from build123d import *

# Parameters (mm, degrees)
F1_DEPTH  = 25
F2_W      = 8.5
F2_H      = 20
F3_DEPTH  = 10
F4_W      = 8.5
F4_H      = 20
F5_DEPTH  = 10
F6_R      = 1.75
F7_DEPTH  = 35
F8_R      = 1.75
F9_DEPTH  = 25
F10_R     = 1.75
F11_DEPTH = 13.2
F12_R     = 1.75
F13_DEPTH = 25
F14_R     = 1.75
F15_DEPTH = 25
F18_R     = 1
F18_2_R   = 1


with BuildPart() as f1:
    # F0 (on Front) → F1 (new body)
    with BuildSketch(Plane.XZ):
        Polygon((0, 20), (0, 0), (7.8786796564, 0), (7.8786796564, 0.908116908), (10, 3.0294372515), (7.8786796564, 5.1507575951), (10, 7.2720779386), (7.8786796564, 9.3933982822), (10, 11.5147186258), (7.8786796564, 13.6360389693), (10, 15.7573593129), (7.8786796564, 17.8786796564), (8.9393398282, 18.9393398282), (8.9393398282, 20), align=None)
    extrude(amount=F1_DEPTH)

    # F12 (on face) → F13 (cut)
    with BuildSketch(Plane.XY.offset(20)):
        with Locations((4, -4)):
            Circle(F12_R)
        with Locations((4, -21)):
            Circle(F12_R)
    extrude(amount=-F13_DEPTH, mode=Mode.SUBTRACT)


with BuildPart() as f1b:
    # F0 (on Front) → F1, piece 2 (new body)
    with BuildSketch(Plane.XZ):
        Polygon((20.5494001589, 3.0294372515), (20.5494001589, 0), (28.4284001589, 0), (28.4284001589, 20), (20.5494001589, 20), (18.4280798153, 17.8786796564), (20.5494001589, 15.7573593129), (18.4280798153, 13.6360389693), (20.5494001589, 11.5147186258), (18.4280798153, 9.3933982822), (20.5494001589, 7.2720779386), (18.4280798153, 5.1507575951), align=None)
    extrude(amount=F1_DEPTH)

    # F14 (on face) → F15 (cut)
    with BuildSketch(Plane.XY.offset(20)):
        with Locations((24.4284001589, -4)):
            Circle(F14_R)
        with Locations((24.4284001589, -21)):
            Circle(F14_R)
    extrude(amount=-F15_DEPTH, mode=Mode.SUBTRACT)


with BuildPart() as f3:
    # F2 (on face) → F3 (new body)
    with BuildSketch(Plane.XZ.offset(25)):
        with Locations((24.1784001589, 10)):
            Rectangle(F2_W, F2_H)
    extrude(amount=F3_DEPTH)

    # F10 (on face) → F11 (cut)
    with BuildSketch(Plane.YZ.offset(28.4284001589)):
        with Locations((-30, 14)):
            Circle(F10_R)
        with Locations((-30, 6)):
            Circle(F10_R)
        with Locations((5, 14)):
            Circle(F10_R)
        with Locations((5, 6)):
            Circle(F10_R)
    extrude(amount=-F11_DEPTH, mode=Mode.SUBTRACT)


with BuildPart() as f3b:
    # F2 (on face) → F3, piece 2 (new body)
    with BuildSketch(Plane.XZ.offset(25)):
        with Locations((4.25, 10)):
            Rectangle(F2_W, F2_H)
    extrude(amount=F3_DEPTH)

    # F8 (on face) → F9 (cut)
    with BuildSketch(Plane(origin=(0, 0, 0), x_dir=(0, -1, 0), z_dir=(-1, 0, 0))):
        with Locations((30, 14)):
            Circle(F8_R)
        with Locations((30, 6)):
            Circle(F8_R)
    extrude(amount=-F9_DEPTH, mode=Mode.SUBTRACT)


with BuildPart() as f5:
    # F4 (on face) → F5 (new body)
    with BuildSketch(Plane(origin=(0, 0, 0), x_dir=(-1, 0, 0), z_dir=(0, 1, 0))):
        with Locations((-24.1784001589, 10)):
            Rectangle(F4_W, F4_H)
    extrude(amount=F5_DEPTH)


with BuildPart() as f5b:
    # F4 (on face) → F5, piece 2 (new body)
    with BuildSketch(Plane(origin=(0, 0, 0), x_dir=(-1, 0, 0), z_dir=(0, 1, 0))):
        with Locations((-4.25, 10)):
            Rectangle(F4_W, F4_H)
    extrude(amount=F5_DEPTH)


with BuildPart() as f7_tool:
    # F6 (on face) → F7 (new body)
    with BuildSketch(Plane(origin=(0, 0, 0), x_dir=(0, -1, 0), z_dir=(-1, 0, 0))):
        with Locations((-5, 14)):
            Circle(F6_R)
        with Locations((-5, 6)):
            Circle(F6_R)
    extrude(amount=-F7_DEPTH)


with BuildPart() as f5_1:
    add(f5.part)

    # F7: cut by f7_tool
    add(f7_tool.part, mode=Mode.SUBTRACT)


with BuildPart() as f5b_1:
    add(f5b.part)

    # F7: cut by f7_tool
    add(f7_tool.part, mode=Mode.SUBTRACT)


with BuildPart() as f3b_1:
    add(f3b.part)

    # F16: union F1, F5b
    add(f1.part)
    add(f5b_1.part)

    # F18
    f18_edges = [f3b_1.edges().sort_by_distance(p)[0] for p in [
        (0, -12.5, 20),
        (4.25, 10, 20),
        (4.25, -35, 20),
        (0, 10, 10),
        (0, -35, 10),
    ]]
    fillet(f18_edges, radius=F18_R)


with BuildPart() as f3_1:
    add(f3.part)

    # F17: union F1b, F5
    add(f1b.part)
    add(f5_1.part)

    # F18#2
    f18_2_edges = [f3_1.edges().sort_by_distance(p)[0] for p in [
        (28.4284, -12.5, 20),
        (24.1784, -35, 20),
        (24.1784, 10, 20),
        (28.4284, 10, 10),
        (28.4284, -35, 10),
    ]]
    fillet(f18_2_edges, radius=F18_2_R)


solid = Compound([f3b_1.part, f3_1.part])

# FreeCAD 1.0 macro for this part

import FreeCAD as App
import Part
import Sketcher

V = App.Vector


def edges_at(feature, points):
    """Names of the edges that pass closest to the given points."""
    edges = feature.Shape.Edges
    near = lambda p: min(range(len(edges)), key=lambda i: edges[i].distToShape(Part.Vertex(*p))[0])
    return sorted({f"Edge{near(p) + 1}" for p in points})

doc = App.newDocument("Part")
body = doc.addObject("PartDesign::Body", "Body")

sketch1 = doc.addObject("Sketcher::SketchObject", "Sketch")
body.addObject(sketch1)
sketch1.AttachmentSupport = (doc.XZ_Plane, [""])
sketch1.MapMode = "FlatFace"
sketch1.addGeometry([
    Part.LineSegment(V(0, 20, 0), V(0, 0, 0)),
    Part.LineSegment(V(0, 0, 0), V(7.9, 0, 0)),
    Part.LineSegment(V(7.9, 0, 0), V(7.9, 0.9, 0)),
    Part.LineSegment(V(7.9, 0.9, 0), V(10, 3, 0)),
    Part.LineSegment(V(10, 3, 0), V(7.9, 5.2, 0)),
    Part.LineSegment(V(7.9, 5.2, 0), V(10, 7.3, 0)),
    Part.LineSegment(V(10, 7.3, 0), V(7.9, 9.4, 0)),
    Part.LineSegment(V(7.9, 9.4, 0), V(10, 11.5, 0)),
    Part.LineSegment(V(10, 11.5, 0), V(7.9, 13.6, 0)),
    Part.LineSegment(V(7.9, 13.6, 0), V(10, 15.8, 0)),
    Part.LineSegment(V(10, 15.8, 0), V(7.9, 17.9, 0)),
    Part.LineSegment(V(7.9, 17.9, 0), V(8.9, 18.9, 0)),
    Part.LineSegment(V(8.9, 18.9, 0), V(8.9, 20, 0)),
    Part.LineSegment(V(8.9, 20, 0), V(0, 20, 0)),
], False)
sketch1.addConstraint([
    Sketcher.Constraint("Coincident", 0, 2, 1, 1),
    Sketcher.Constraint("Coincident", 1, 2, 2, 1),
    Sketcher.Constraint("Coincident", 2, 2, 3, 1),
    Sketcher.Constraint("Coincident", 3, 2, 4, 1),
    Sketcher.Constraint("Coincident", 4, 2, 5, 1),
    Sketcher.Constraint("Coincident", 5, 2, 6, 1),
    Sketcher.Constraint("Coincident", 6, 2, 7, 1),
    Sketcher.Constraint("Coincident", 7, 2, 8, 1),
    Sketcher.Constraint("Coincident", 8, 2, 9, 1),
    Sketcher.Constraint("Coincident", 9, 2, 10, 1),
    Sketcher.Constraint("Coincident", 10, 2, 11, 1),
    Sketcher.Constraint("Coincident", 11, 2, 12, 1),
    Sketcher.Constraint("Coincident", 12, 2, 13, 1),
    Sketcher.Constraint("Coincident", 13, 2, 0, 1),
    Sketcher.Constraint("Vertical", 0),
    Sketcher.Constraint("Horizontal", 1),
    Sketcher.Constraint("Vertical", 2),
    Sketcher.Constraint("Vertical", 12),
    Sketcher.Constraint("Horizontal", 13),
    Sketcher.Constraint("Coincident", 0, 2, -1, 1),
    Sketcher.Constraint("Perpendicular", 3, 4),
    Sketcher.Constraint("Perpendicular", 4, 5),
    Sketcher.Constraint("Perpendicular", 5, 6),
    Sketcher.Constraint("Perpendicular", 6, 7),
    Sketcher.Constraint("Perpendicular", 7, 8),
    Sketcher.Constraint("Perpendicular", 8, 9),
    Sketcher.Constraint("Perpendicular", 9, 10),
    Sketcher.Constraint("Perpendicular", 10, 11),
    Sketcher.Constraint("Vertical", 2, 2, 4, 2),
    Sketcher.Constraint("Vertical", 3, 2, 5, 2),
    Sketcher.Constraint("Vertical", 4, 2, 6, 2),
    Sketcher.Constraint("Vertical", 5, 2, 7, 2),
    Sketcher.Constraint("Vertical", 6, 2, 8, 2),
    Sketcher.Constraint("Vertical", 7, 2, 9, 2),
    Sketcher.Constraint("Vertical", 8, 2, 10, 2),
    Sketcher.Constraint("Equal", 3, 4),
    Sketcher.Constraint("DistanceY", 0, 2, 0, 1, 20.0),
    Sketcher.Constraint("Distance", 3, 3.0),
    Sketcher.Constraint("DistanceX", -1, 1, 3, 2, 10.0),
    Sketcher.Constraint("Distance", 11, 1.5),
    Sketcher.Constraint("DistanceY", 12, 1, 12, 2, 1.06066),
])
pad1 = doc.addObject("PartDesign::Pad", "Pad")
body.addObject(pad1)
pad1.Profile = sketch1
pad1.Length = 25

sketch2 = doc.addObject("Sketcher::SketchObject", "Sketch001")
body.addObject(sketch2)
sketch2.AttachmentSupport = (doc.XY_Plane, [""])
sketch2.MapMode = "FlatFace"
sketch2.AttachmentOffset = App.Placement(V(0, 0, 20), App.Rotation())
sketch2.addGeometry([
    Part.Circle(V(4, -4, 0), V(0, 0, 1), 1.8),
    Part.Circle(V(4, -21, 0), V(0, 0, 1), 1.8),
], False)
sketch2.addConstraint([
    Sketcher.Constraint("Equal", 0, 1),
    Sketcher.Constraint("Vertical", 0, 3, 1, 3),
    Sketcher.Constraint("Diameter", 0, 3.5),
    Sketcher.Constraint("DistanceX", -1, 1, 0, 3, 4.0),
    Sketcher.Constraint("DistanceY", 0, 3, -1, 1, 4.0),
    Sketcher.Constraint("DistanceY", 1, 3, -1, 1, 21.0),
])
pocket1 = doc.addObject("PartDesign::Pocket", "Pocket")
body.addObject(pocket1)
pocket1.Profile = sketch2
pocket1.Length = 25
body2 = doc.addObject("PartDesign::Body", "Body001")

sketch3 = doc.addObject("Sketcher::SketchObject", "Sketch002")
body2.addObject(sketch3)
sketch3.AttachmentSupport = (doc.getObject("XZ_Plane001"), [""])
sketch3.MapMode = "FlatFace"
sketch3.addGeometry([
    Part.LineSegment(V(20.5, 3, 0), V(20.5, 0, 0)),
    Part.LineSegment(V(20.5, 0, 0), V(28.4, 0, 0)),
    Part.LineSegment(V(28.4, 0, 0), V(28.4, 20, 0)),
    Part.LineSegment(V(28.4, 20, 0), V(20.5, 20, 0)),
    Part.LineSegment(V(20.5, 20, 0), V(18.4, 17.9, 0)),
    Part.LineSegment(V(18.4, 17.9, 0), V(20.5, 15.8, 0)),
    Part.LineSegment(V(20.5, 15.8, 0), V(18.4, 13.6, 0)),
    Part.LineSegment(V(18.4, 13.6, 0), V(20.5, 11.5, 0)),
    Part.LineSegment(V(20.5, 11.5, 0), V(18.4, 9.4, 0)),
    Part.LineSegment(V(18.4, 9.4, 0), V(20.5, 7.3, 0)),
    Part.LineSegment(V(20.5, 7.3, 0), V(18.4, 5.2, 0)),
    Part.LineSegment(V(18.4, 5.2, 0), V(20.5, 3, 0)),
], False)
sketch3.addConstraint([
    Sketcher.Constraint("Coincident", 0, 2, 1, 1),
    Sketcher.Constraint("Coincident", 1, 2, 2, 1),
    Sketcher.Constraint("Coincident", 2, 2, 3, 1),
    Sketcher.Constraint("Coincident", 3, 2, 4, 1),
    Sketcher.Constraint("Coincident", 4, 2, 5, 1),
    Sketcher.Constraint("Coincident", 5, 2, 6, 1),
    Sketcher.Constraint("Coincident", 6, 2, 7, 1),
    Sketcher.Constraint("Coincident", 7, 2, 8, 1),
    Sketcher.Constraint("Coincident", 8, 2, 9, 1),
    Sketcher.Constraint("Coincident", 9, 2, 10, 1),
    Sketcher.Constraint("Coincident", 10, 2, 11, 1),
    Sketcher.Constraint("Coincident", 11, 2, 0, 1),
    Sketcher.Constraint("Vertical", 0),
    Sketcher.Constraint("Horizontal", 1),
    Sketcher.Constraint("Vertical", 2),
    Sketcher.Constraint("Horizontal", 3),
    Sketcher.Constraint("PointOnObject", 0, 2, -1),
    Sketcher.Constraint("Perpendicular", 4, 5),
    Sketcher.Constraint("Perpendicular", 5, 6),
    Sketcher.Constraint("Perpendicular", 6, 7),
    Sketcher.Constraint("Perpendicular", 7, 8),
    Sketcher.Constraint("Perpendicular", 8, 9),
    Sketcher.Constraint("Perpendicular", 9, 10),
    Sketcher.Constraint("Perpendicular", 10, 11),
    Sketcher.Constraint("Vertical", 0, 2, 3, 2),
    Sketcher.Constraint("Vertical", 3, 2, 5, 2),
    Sketcher.Constraint("Vertical", 4, 2, 6, 2),
    Sketcher.Constraint("Vertical", 5, 2, 7, 2),
    Sketcher.Constraint("Vertical", 6, 2, 8, 2),
    Sketcher.Constraint("Vertical", 7, 2, 9, 2),
    Sketcher.Constraint("Vertical", 8, 2, 10, 2),
    Sketcher.Constraint("Equal", 4, 5),
    Sketcher.Constraint("DistanceY", 2, 1, 2, 2, 20.0),
    Sketcher.Constraint("Distance", 4, 3.0),
    Sketcher.Constraint("DistanceX", 1, 1, 1, 2, 7.879),
    Sketcher.Constraint("DistanceX", -1, 1, 0, 2, 20.5494),
])
pad2 = doc.addObject("PartDesign::Pad", "Pad001")
body2.addObject(pad2)
pad2.Profile = sketch3
pad2.Length = 25

sketch4 = doc.addObject("Sketcher::SketchObject", "Sketch003")
body2.addObject(sketch4)
sketch4.AttachmentSupport = (doc.getObject("XY_Plane001"), [""])
sketch4.MapMode = "FlatFace"
sketch4.AttachmentOffset = App.Placement(V(0, 0, 20), App.Rotation())
sketch4.addGeometry([
    Part.Circle(V(24.4, -4, 0), V(0, 0, 1), 1.8),
    Part.Circle(V(24.4, -21, 0), V(0, 0, 1), 1.8),
], False)
sketch4.addConstraint([
    Sketcher.Constraint("Equal", 0, 1),
    Sketcher.Constraint("Vertical", 0, 3, 1, 3),
    Sketcher.Constraint("Diameter", 0, 3.5),
    Sketcher.Constraint("DistanceY", 0, 3, -1, 1, 4.0),
    Sketcher.Constraint("DistanceY", 1, 3, -1, 1, 21.0),
    Sketcher.Constraint("DistanceX", -1, 1, 0, 3, 24.4284),
])
pocket2 = doc.addObject("PartDesign::Pocket", "Pocket001")
body2.addObject(pocket2)
pocket2.Profile = sketch4
pocket2.Length = 25
body3 = doc.addObject("PartDesign::Body", "Body002")

sketch5 = doc.addObject("Sketcher::SketchObject", "Sketch004")
body3.addObject(sketch5)
sketch5.AttachmentSupport = (doc.getObject("XZ_Plane002"), [""])
sketch5.MapMode = "FlatFace"
sketch5.AttachmentOffset = App.Placement(V(0, 0, 25), App.Rotation())
sketch5.addGeometry([
    Part.LineSegment(V(20, 20, 0), V(20, 0, 0)),
    Part.LineSegment(V(20, 0, 0), V(28, 0, 0)),
    Part.LineSegment(V(28, 0, 0), V(28, 20, 0)),
    Part.LineSegment(V(28, 20, 0), V(20, 20, 0)),
], False)
sketch5.addConstraint([
    Sketcher.Constraint("Coincident", 0, 2, 1, 1),
    Sketcher.Constraint("Coincident", 1, 2, 2, 1),
    Sketcher.Constraint("Coincident", 2, 2, 3, 1),
    Sketcher.Constraint("Coincident", 3, 2, 0, 1),
    Sketcher.Constraint("Vertical", 0),
    Sketcher.Constraint("Horizontal", 1),
    Sketcher.Constraint("Vertical", 2),
    Sketcher.Constraint("Horizontal", 3),
    Sketcher.Constraint("PointOnObject", 0, 2, -1),
    Sketcher.Constraint("DistanceY", 0, 2, 0, 1, 20.0),
    Sketcher.Constraint("DistanceX", 1, 1, 1, 2, 8.5),
    Sketcher.Constraint("DistanceX", -1, 1, 0, 2, 19.9284),
])
pad3 = doc.addObject("PartDesign::Pad", "Pad002")
body3.addObject(pad3)
pad3.Profile = sketch5
pad3.Length = 10

sketch6 = doc.addObject("Sketcher::SketchObject", "Sketch005")
body3.addObject(sketch6)
sketch6.AttachmentSupport = (doc.getObject("YZ_Plane002"), [""])
sketch6.MapMode = "FlatFace"
sketch6.AttachmentOffset = App.Placement(V(0, 0, 28.4284), App.Rotation())
sketch6.addGeometry([
    Part.Circle(V(-30, 14, 0), V(0, 0, 1), 1.8),
    Part.Circle(V(-30, 6, 0), V(0, 0, 1), 1.8),
    Part.Circle(V(5, 14, 0), V(0, 0, 1), 1.8),
    Part.Circle(V(5, 6, 0), V(0, 0, 1), 1.8),
], False)
sketch6.addConstraint([
    Sketcher.Constraint("Equal", 0, 1),
    Sketcher.Constraint("Equal", 1, 2),
    Sketcher.Constraint("Equal", 2, 3),
    Sketcher.Constraint("Horizontal", 0, 3, 2, 3),
    Sketcher.Constraint("Horizontal", 1, 3, 3, 3),
    Sketcher.Constraint("Vertical", 0, 3, 1, 3),
    Sketcher.Constraint("Vertical", 2, 3, 3, 3),
    Sketcher.Constraint("Diameter", 0, 3.5),
    Sketcher.Constraint("DistanceX", 0, 3, -1, 1, 30.0),
    Sketcher.Constraint("DistanceY", -1, 1, 0, 3, 14.0),
    Sketcher.Constraint("DistanceY", -1, 1, 1, 3, 6.0),
    Sketcher.Constraint("DistanceX", -1, 1, 2, 3, 5.0),
])
pocket3 = doc.addObject("PartDesign::Pocket", "Pocket002")
body3.addObject(pocket3)
pocket3.Profile = sketch6
pocket3.Length = 13.2
body4 = doc.addObject("PartDesign::Body", "Body003")

sketch7 = doc.addObject("Sketcher::SketchObject", "Sketch006")
body4.addObject(sketch7)
sketch7.AttachmentSupport = (doc.getObject("XZ_Plane003"), [""])
sketch7.MapMode = "FlatFace"
sketch7.AttachmentOffset = App.Placement(V(0, 0, 25), App.Rotation())
sketch7.addGeometry([
    Part.LineSegment(V(0, 20, 0), V(0, 0, 0)),
    Part.LineSegment(V(0, 0, 0), V(8, 0, 0)),
    Part.LineSegment(V(8, 0, 0), V(8, 20, 0)),
    Part.LineSegment(V(8, 20, 0), V(0, 20, 0)),
], False)
sketch7.addConstraint([
    Sketcher.Constraint("Coincident", 0, 2, 1, 1),
    Sketcher.Constraint("Coincident", 1, 2, 2, 1),
    Sketcher.Constraint("Coincident", 2, 2, 3, 1),
    Sketcher.Constraint("Coincident", 3, 2, 0, 1),
    Sketcher.Constraint("Vertical", 0),
    Sketcher.Constraint("Horizontal", 1),
    Sketcher.Constraint("Vertical", 2),
    Sketcher.Constraint("Horizontal", 3),
    Sketcher.Constraint("Coincident", 0, 2, -1, 1),
    Sketcher.Constraint("DistanceY", 0, 2, 0, 1, 20.0),
    Sketcher.Constraint("DistanceX", 1, 1, 1, 2, 8.5),
])
pad4 = doc.addObject("PartDesign::Pad", "Pad003")
body4.addObject(pad4)
pad4.Profile = sketch7
pad4.Length = 10

sketch8 = doc.addObject("Sketcher::SketchObject", "Sketch007")
body4.addObject(sketch8)
sketch8.AttachmentSupport = (doc.getObject("YZ_Plane003"), [""])
sketch8.MapMode = "FlatFace"
sketch8.addGeometry([
    Part.Circle(V(-30, 14, 0), V(0, 0, 1), 1.8),
    Part.Circle(V(-30, 6, 0), V(0, 0, 1), 1.8),
], False)
sketch8.addConstraint([
    Sketcher.Constraint("Equal", 0, 1),
    Sketcher.Constraint("Vertical", 0, 3, 1, 3),
    Sketcher.Constraint("Diameter", 0, 3.5),
    Sketcher.Constraint("DistanceX", 0, 3, -1, 1, 30.0),
    Sketcher.Constraint("DistanceY", -1, 1, 0, 3, 14.0),
    Sketcher.Constraint("DistanceY", -1, 1, 1, 3, 6.0),
])
pocket4 = doc.addObject("PartDesign::Pocket", "Pocket003")
body4.addObject(pocket4)
pocket4.Profile = sketch8
pocket4.Length = 25
pocket4.Reversed = True
body5 = doc.addObject("PartDesign::Body", "Body004")

sketch9 = doc.addObject("Sketcher::SketchObject", "Sketch008")
body5.addObject(sketch9)
sketch9.AttachmentSupport = (doc.getObject("XZ_Plane004"), [""])
sketch9.MapMode = "FlatFace"
sketch9.addGeometry([
    Part.LineSegment(V(28, 20, 0), V(28, 0, 0)),
    Part.LineSegment(V(28, 0, 0), V(20, 0, 0)),
    Part.LineSegment(V(20, 0, 0), V(20, 20, 0)),
    Part.LineSegment(V(20, 20, 0), V(28, 20, 0)),
], False)
sketch9.addConstraint([
    Sketcher.Constraint("Coincident", 0, 2, 1, 1),
    Sketcher.Constraint("Coincident", 1, 2, 2, 1),
    Sketcher.Constraint("Coincident", 2, 2, 3, 1),
    Sketcher.Constraint("Coincident", 3, 2, 0, 1),
    Sketcher.Constraint("Vertical", 0),
    Sketcher.Constraint("Horizontal", 1),
    Sketcher.Constraint("Vertical", 2),
    Sketcher.Constraint("Horizontal", 3),
    Sketcher.Constraint("PointOnObject", 0, 2, -1),
    Sketcher.Constraint("DistanceY", 0, 2, 0, 1, 20.0),
    Sketcher.Constraint("DistanceX", 1, 2, 1, 1, 8.5),
    Sketcher.Constraint("DistanceX", -1, 1, 0, 2, 28.4284),
])
pad5 = doc.addObject("PartDesign::Pad", "Pad004")
body5.addObject(pad5)
pad5.Profile = sketch9
pad5.Length = 10
pad5.Reversed = True
body6 = doc.addObject("PartDesign::Body", "Body005")

sketch10 = doc.addObject("Sketcher::SketchObject", "Sketch009")
body6.addObject(sketch10)
sketch10.AttachmentSupport = (doc.getObject("XZ_Plane005"), [""])
sketch10.MapMode = "FlatFace"
sketch10.addGeometry([
    Part.LineSegment(V(8, 20, 0), V(8, 0, 0)),
    Part.LineSegment(V(8, 0, 0), V(0, 0, 0)),
    Part.LineSegment(V(0, 0, 0), V(0, 20, 0)),
    Part.LineSegment(V(0, 20, 0), V(8, 20, 0)),
], False)
sketch10.addConstraint([
    Sketcher.Constraint("Coincident", 0, 2, 1, 1),
    Sketcher.Constraint("Coincident", 1, 2, 2, 1),
    Sketcher.Constraint("Coincident", 2, 2, 3, 1),
    Sketcher.Constraint("Coincident", 3, 2, 0, 1),
    Sketcher.Constraint("Vertical", 0),
    Sketcher.Constraint("Horizontal", 1),
    Sketcher.Constraint("Vertical", 2),
    Sketcher.Constraint("Horizontal", 3),
    Sketcher.Constraint("Coincident", 1, 2, -1, 1),
    Sketcher.Constraint("DistanceY", 0, 2, 0, 1, 20.0),
    Sketcher.Constraint("DistanceX", 1, 2, 1, 1, 8.5),
])
pad6 = doc.addObject("PartDesign::Pad", "Pad005")
body6.addObject(pad6)
pad6.Profile = sketch10
pad6.Length = 10
pad6.Reversed = True
body7 = doc.addObject("PartDesign::Body", "Body006")
body7.AllowCompound = True

sketch11 = doc.addObject("Sketcher::SketchObject", "Sketch010")
body7.addObject(sketch11)
sketch11.AttachmentSupport = (doc.getObject("YZ_Plane006"), [""])
sketch11.MapMode = "FlatFace"
sketch11.addGeometry([
    Part.Circle(V(5, 14, 0), V(0, 0, 1), 1.8),
    Part.Circle(V(5, 6, 0), V(0, 0, 1), 1.8),
], False)
sketch11.addConstraint([
    Sketcher.Constraint("Equal", 0, 1),
    Sketcher.Constraint("Vertical", 0, 3, 1, 3),
    Sketcher.Constraint("Diameter", 0, 3.5),
    Sketcher.Constraint("DistanceX", -1, 1, 0, 3, 5.0),
    Sketcher.Constraint("DistanceY", -1, 1, 0, 3, 14.0),
    Sketcher.Constraint("DistanceY", -1, 1, 1, 3, 6.0),
])
pad7 = doc.addObject("PartDesign::Pad", "Pad006")
body7.addObject(pad7)
pad7.Profile = sketch11
pad7.Length = 35
doc.recompute()

body8 = doc.addObject("PartDesign::Body", "Body007")
body8.BaseFeature = body7
boolean = doc.addObject("PartDesign::Boolean", "Boolean")
body5.addObject(boolean)
boolean.Type = "Cut"
boolean.addObjects([body8])
doc.recompute()

boolean2 = doc.addObject("PartDesign::Boolean", "Boolean001")
body6.addObject(boolean2)
boolean2.Type = "Cut"
boolean2.addObjects([body7])
doc.recompute()

boolean3 = doc.addObject("PartDesign::Boolean", "Boolean002")
body4.addObject(boolean3)
boolean3.Type = "Fuse"
boolean3.addObjects([body])
doc.recompute()

boolean4 = doc.addObject("PartDesign::Boolean", "Boolean003")
body4.addObject(boolean4)
boolean4.Type = "Fuse"
boolean4.addObjects([body6])
doc.recompute()

fillet = doc.addObject("PartDesign::Fillet", "Fillet")
body4.addObject(fillet)
fillet.Base = (boolean4, edges_at(boolean4, [
    (0, -12.5, 20),
    (4.25, 10, 20),
    (4.25, -35, 20),
    (0, 10, 10),
    (0, -35, 10),
]))
fillet.Radius = 1
doc.recompute()

boolean5 = doc.addObject("PartDesign::Boolean", "Boolean004")
body3.addObject(boolean5)
boolean5.Type = "Fuse"
boolean5.addObjects([body2])
doc.recompute()

boolean6 = doc.addObject("PartDesign::Boolean", "Boolean005")
body3.addObject(boolean6)
boolean6.Type = "Fuse"
boolean6.addObjects([body5])
doc.recompute()

fillet2 = doc.addObject("PartDesign::Fillet", "Fillet001")
body3.addObject(fillet2)
fillet2.Base = (boolean6, edges_at(boolean6, [
    (28.428, -12.5, 20),
    (24.178, -35, 20),
    (24.178, 10, 20),
    (28.428, 10, 10),
    (28.428, -35, 10),
]))
fillet2.Radius = 1

doc.recompute()
